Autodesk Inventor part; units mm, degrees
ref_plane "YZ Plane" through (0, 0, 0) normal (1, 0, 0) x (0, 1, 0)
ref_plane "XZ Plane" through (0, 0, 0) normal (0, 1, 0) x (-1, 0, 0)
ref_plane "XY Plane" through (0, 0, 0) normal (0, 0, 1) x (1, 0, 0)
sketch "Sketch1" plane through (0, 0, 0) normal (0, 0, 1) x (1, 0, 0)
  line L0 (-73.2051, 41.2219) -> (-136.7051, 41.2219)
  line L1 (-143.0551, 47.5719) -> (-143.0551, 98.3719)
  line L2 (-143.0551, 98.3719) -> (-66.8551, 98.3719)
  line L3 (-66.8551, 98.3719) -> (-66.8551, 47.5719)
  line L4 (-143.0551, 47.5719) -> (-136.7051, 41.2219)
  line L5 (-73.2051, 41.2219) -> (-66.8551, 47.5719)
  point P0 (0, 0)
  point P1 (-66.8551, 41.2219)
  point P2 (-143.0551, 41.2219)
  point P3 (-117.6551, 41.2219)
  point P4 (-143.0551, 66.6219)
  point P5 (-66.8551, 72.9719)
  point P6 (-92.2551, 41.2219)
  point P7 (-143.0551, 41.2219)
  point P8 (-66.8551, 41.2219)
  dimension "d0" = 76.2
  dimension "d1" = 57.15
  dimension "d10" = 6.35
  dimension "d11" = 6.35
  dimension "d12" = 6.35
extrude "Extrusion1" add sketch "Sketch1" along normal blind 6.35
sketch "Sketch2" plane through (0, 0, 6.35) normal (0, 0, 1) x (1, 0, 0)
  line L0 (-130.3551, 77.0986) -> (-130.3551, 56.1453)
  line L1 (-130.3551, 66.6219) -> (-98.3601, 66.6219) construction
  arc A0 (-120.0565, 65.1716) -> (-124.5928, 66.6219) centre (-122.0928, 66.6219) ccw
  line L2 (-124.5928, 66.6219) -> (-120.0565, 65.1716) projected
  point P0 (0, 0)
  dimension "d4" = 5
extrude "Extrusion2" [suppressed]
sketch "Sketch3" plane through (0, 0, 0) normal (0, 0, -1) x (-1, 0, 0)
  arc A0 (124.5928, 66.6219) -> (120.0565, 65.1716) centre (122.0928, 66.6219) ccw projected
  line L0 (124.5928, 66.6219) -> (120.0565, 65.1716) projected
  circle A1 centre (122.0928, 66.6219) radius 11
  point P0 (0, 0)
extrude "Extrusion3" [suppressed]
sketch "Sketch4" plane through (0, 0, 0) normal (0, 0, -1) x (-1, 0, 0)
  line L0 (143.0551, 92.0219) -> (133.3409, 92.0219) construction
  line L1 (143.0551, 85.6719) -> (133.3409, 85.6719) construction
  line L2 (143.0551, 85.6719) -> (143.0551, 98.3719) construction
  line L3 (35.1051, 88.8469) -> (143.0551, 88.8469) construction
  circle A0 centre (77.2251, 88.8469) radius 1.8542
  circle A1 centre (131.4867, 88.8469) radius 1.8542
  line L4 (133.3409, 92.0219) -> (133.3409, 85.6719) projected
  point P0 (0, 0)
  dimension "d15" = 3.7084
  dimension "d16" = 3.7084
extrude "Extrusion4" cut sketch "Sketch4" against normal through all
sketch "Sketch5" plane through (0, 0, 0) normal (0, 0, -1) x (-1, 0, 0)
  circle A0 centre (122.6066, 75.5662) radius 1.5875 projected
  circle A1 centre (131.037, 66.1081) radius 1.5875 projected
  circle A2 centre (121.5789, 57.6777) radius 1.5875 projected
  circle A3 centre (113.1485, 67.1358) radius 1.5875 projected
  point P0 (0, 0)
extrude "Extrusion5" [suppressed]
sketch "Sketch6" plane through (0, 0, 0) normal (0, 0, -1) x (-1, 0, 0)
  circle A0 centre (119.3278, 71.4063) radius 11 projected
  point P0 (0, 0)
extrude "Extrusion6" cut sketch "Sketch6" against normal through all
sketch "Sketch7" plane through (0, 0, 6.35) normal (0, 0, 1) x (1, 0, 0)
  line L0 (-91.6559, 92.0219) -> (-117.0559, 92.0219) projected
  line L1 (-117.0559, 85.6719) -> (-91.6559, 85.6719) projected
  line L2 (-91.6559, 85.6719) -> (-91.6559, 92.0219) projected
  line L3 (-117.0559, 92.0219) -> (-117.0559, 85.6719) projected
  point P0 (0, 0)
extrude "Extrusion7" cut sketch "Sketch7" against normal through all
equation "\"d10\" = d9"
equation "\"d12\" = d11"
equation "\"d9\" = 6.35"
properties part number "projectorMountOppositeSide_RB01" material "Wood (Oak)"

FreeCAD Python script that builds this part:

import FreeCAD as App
import Part
import Sketcher

V = App.Vector
Q = App.Units.Quantity


def add_polygon(sketch, points):
    """Adds a closed chain of lines whose ends are joined by coincident constraints."""
    first, n = sketch.GeometryCount, len(points)
    for a, b in zip(points, points[1:] + points[:1]):
        sketch.addGeometry(Part.LineSegment(App.Vector(*a, 0), App.Vector(*b, 0)), False)
    for i in range(n):
        sketch.addConstraint(Sketcher.Constraint("Coincident", first + i, 2, first + (i + 1) % n, 1))

doc = App.newDocument("Part")
body = doc.addObject("PartDesign::Body", "Body")

# Sketch on XY plane
sketch1 = body.newObject("Sketcher::SketchObject", "Sketch")
sketch1.AttachmentSupport = (doc.getObject("XY_Plane"), [""])
sketch1.MapMode = "FlatFace"
add_polygon(sketch1, [(-136.7051, 41.2219), (-73.2051, 41.2219), (-66.8551, 47.5719), (-66.8551, 98.3719), (-143.0551, 98.3719), (-143.0551, 47.5719)])  # lines 0-5
sketch1.addConstraint([
    Sketcher.Constraint("Horizontal", 0),
    Sketcher.Constraint("Vertical", 2),
    Sketcher.Constraint("Horizontal", 3),
    Sketcher.Constraint("Vertical", 4),
    Sketcher.Constraint("Perpendicular", 1, 5),
    Sketcher.Constraint("Horizontal", 1, 2, 4, 2),
    Sketcher.Constraint("Equal", 1, 5),
    Sketcher.Constraint("DistanceX", 3, 2, 3, 1, Q("3 in")),
    Sketcher.Constraint("DistanceY", 2, 1, 2, 2, Q("2 in")),
    Sketcher.Constraint("DistanceX", 0, 2, 1, 2, Q("0.25 in")),
    Sketcher.Constraint("DistanceX", 0, 2, -1, 1, Q("2.8821 in")),
    Sketcher.Constraint("DistanceY", -1, 1, 0, 2, Q("1.6229 in")),
])
pad1 = body.newObject("PartDesign::Pad", "Pad")
pad1.Profile = sketch1
pad1.Length = Q("0.25 in")

# Sketch on XY plane
sketch2 = body.newObject("Sketcher::SketchObject", "Sketch001")
sketch2.AttachmentSupport = (doc.getObject("XY_Plane"), [""])
sketch2.MapMode = "FlatFace"
sketch2.addGeometry([
    Part.Circle(V(-77.2251, 88.8469, 0), V(0, 0, 1), 1.8542),
    Part.Circle(V(-131.4867, 88.8469, 0), V(0, 0, 1), 1.8542),
], False)
sketch2.addConstraint([
    Sketcher.Constraint("Equal", 0, 1),
    Sketcher.Constraint("Horizontal", 0, 3, 1, 3),
    Sketcher.Constraint("Diameter", 0, Q("0.146 in")),
    Sketcher.Constraint("DistanceY", -1, 1, 0, 3, Q("3.4979 in")),
    Sketcher.Constraint("DistanceX", 0, 3, -1, 1, Q("77.225 mm")),
    Sketcher.Constraint("DistanceX", 1, 3, -1, 1, Q("131.4867 mm")),
])
pocket1 = body.newObject("PartDesign::Pocket", "Pocket")
pocket1.Profile = sketch2
pocket1.Type = "ThroughAll"
pocket1.Reversed = True

# Sketch on XY plane
sketch3 = body.newObject("Sketcher::SketchObject", "Sketch002")
sketch3.AttachmentSupport = (doc.getObject("XY_Plane"), [""])
sketch3.MapMode = "FlatFace"
sketch3.addGeometry(Part.Circle(V(-119.3278, 71.4063, 0), V(0, 0, 1), 11), False)
sketch3.addConstraint([
    Sketcher.Constraint("Diameter", 0, Q("22 mm")),
    Sketcher.Constraint("DistanceX", 0, 3, -1, 1, Q("119.3278 mm")),
    Sketcher.Constraint("DistanceY", -1, 1, 0, 3, Q("71.4063 mm")),
])
pocket2 = body.newObject("PartDesign::Pocket", "Pocket001")
pocket2.Profile = sketch3
pocket2.Type = "ThroughAll"
pocket2.Reversed = True

# Sketch on XY plane
sketch4 = body.newObject("Sketcher::SketchObject", "Sketch003")
sketch4.AttachmentSupport = (doc.getObject("XY_Plane"), [""])
sketch4.MapMode = "FlatFace"
sketch4.AttachmentOffset = App.Placement(V(0, 0, 0.25 * 25.4), App.Rotation())
add_polygon(sketch4, [(-91.6559, 85.6719), (-91.6559, 92.0219), (-117.0559, 92.0219), (-117.0559, 85.6719)])  # lines 0-3
sketch4.addConstraint([
    Sketcher.Constraint("Vertical", 0),
    Sketcher.Constraint("Horizontal", 1),
    Sketcher.Constraint("Vertical", 2),
    Sketcher.Constraint("Horizontal", 3),
    Sketcher.Constraint("DistanceX", 1, 2, 1, 1, Q("1 in")),
    Sketcher.Constraint("DistanceY", 0, 1, 0, 2, Q("0.25 in")),
    Sketcher.Constraint("DistanceX", 0, 2, -1, 1, Q("3.6085 in")),
    Sketcher.Constraint("DistanceY", -1, 1, 0, 2, Q("3.6229 in")),
])
pocket3 = body.newObject("PartDesign::Pocket", "Pocket002")
pocket3.Profile = sketch4
pocket3.Type = "ThroughAll"

doc.recompute()
